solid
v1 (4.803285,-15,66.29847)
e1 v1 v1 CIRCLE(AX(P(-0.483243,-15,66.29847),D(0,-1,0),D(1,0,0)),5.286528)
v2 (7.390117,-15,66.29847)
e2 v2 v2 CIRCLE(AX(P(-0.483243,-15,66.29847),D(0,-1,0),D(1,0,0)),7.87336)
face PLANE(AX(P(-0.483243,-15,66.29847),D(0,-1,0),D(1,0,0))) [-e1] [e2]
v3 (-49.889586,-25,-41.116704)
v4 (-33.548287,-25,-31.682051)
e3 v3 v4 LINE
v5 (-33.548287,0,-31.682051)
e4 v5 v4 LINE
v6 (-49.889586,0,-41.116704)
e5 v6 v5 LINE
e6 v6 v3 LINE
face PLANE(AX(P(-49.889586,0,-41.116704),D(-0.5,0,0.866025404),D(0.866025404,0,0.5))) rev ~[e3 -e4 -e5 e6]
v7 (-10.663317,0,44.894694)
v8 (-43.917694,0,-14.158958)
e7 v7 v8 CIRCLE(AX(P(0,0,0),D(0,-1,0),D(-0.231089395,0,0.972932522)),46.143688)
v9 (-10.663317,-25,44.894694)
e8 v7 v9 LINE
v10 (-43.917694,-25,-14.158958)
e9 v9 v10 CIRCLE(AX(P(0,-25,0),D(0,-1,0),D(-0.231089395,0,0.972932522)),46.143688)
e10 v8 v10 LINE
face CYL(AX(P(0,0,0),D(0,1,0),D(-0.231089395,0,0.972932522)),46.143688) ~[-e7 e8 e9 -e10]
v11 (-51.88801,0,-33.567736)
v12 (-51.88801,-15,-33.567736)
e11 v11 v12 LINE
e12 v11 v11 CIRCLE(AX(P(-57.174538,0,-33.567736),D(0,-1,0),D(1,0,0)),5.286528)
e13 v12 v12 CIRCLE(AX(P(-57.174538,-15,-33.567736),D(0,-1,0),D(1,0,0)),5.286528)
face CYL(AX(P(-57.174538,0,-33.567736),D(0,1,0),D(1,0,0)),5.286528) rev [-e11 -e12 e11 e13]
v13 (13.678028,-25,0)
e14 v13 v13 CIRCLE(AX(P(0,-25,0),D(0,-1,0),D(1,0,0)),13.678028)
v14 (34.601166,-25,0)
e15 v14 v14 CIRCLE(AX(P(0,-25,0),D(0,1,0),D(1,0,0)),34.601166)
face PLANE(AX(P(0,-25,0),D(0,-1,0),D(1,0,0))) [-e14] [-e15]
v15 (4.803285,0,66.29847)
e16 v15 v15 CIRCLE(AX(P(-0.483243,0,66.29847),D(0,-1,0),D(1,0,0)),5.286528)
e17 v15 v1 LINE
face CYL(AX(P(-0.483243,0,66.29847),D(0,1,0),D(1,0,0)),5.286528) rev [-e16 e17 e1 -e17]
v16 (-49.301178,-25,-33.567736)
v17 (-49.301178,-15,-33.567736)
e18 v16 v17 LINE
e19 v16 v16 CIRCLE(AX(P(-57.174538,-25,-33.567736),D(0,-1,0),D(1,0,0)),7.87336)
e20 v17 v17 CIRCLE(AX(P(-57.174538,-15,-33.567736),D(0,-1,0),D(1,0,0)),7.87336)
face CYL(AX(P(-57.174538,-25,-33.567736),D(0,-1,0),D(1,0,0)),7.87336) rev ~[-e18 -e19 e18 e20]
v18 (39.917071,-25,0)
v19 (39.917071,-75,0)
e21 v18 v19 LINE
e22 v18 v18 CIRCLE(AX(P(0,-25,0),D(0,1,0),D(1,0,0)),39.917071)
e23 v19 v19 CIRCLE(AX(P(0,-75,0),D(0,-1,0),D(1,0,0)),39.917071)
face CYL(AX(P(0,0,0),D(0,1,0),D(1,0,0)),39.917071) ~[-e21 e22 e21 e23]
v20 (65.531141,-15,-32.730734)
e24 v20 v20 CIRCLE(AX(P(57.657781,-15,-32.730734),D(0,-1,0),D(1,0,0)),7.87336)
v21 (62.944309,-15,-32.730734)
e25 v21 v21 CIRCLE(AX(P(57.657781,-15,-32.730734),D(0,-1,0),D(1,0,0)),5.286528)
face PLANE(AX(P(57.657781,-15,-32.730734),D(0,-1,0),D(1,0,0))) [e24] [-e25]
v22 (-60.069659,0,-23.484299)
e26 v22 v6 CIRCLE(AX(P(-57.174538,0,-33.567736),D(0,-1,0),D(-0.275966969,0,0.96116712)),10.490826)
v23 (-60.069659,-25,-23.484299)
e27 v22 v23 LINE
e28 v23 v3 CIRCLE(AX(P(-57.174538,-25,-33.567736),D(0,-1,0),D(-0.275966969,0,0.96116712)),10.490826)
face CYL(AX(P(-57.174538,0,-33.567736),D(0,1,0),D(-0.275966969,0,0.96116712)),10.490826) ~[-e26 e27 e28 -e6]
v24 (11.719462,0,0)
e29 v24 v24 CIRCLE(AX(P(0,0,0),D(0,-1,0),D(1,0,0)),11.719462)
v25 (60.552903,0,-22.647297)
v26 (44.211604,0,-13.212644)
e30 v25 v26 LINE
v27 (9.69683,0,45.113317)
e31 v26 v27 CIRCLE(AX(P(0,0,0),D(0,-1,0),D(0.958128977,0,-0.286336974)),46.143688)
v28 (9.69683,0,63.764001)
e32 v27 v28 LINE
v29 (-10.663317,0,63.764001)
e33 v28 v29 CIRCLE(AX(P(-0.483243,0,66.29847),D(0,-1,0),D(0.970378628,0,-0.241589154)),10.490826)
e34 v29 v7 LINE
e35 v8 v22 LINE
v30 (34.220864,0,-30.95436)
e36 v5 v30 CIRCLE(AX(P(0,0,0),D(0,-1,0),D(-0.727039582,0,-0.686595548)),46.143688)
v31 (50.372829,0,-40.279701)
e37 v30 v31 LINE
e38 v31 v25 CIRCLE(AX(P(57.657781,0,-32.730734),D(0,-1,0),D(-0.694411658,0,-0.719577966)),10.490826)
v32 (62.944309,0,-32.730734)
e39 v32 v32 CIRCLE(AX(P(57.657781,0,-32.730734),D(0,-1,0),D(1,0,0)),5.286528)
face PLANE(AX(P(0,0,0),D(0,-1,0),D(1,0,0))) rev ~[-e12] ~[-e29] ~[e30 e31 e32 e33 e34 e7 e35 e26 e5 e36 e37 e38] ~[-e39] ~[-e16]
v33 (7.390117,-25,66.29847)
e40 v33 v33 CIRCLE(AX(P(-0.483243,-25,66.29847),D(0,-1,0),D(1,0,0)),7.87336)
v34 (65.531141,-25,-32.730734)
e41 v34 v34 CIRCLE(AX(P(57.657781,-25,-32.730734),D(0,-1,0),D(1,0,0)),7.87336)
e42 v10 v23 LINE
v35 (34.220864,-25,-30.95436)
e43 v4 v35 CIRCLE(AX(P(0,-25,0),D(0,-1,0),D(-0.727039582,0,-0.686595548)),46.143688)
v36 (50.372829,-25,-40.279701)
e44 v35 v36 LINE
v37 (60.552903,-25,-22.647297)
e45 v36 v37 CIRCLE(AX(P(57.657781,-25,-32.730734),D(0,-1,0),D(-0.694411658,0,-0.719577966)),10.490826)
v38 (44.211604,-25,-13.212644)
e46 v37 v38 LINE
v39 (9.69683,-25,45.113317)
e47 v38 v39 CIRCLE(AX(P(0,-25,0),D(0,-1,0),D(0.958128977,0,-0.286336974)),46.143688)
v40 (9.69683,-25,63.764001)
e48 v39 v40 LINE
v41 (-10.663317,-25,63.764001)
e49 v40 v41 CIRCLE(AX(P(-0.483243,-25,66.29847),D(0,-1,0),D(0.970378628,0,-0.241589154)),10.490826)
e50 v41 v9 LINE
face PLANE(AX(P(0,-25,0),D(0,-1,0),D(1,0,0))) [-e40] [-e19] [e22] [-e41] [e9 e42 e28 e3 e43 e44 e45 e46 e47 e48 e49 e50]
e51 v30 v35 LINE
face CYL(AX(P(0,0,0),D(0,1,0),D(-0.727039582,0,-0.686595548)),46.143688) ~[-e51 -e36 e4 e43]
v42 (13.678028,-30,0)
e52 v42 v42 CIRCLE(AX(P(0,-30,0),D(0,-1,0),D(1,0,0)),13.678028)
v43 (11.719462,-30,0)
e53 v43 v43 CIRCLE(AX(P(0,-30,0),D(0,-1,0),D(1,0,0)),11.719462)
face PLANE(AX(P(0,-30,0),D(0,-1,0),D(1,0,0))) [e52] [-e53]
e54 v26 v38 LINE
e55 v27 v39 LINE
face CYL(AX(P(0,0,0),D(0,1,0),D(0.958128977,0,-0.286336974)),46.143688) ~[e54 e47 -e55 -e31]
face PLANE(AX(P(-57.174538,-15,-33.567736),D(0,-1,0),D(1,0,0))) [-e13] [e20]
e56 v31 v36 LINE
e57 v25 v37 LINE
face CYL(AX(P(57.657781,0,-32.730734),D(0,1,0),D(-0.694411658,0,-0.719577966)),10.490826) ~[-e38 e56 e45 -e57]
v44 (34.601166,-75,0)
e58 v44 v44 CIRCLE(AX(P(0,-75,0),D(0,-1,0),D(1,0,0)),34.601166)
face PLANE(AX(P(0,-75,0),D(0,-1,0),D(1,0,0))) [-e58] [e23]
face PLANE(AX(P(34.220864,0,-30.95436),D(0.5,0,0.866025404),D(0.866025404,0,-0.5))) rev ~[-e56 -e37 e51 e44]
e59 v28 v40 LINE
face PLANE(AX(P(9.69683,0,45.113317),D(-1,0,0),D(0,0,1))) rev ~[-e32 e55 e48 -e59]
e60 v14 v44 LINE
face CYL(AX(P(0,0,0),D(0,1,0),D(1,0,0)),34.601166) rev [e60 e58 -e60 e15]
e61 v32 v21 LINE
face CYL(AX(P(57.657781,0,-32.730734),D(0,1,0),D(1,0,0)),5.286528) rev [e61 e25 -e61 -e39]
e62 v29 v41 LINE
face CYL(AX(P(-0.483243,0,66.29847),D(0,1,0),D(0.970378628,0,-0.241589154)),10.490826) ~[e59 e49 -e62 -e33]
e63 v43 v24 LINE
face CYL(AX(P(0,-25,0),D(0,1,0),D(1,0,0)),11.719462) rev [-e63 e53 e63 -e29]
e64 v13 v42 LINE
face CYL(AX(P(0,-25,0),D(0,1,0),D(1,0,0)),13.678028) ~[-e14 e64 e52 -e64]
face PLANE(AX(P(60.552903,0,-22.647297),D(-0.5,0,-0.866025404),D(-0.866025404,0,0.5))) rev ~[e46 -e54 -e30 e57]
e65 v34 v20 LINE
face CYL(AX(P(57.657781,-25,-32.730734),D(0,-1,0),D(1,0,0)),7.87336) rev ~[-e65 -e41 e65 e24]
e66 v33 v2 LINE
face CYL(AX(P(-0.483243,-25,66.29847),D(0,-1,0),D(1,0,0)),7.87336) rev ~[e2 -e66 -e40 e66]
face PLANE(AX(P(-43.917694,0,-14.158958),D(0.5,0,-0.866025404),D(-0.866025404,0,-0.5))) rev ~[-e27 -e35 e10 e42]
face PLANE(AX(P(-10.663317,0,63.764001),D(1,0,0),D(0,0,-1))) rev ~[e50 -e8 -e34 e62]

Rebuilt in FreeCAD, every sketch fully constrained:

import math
import FreeCAD as App
import Part
import Sketcher
Q = App.Units.Quantity

doc = App.newDocument("Part")
body = doc.addObject("PartDesign::Body", "Body")

sketch1 = body.newObject("Sketcher::SketchObject", "Sketch")
sketch1.AttachmentSupport = (doc.getObject("XZ_Plane"), [""])
sketch1.MapMode = "FlatFace"
sketch1.addGeometry([
    Part.LineSegment(App.Vector(-11, 64, 0), App.Vector(-11, 45, 0)),
    Part.ArcOfCircle(Part.Circle(App.Vector(0, 0, 0), App.Vector(0, 0, 1), 46), math.radians(103), math.radians(198)),
    Part.LineSegment(App.Vector(-44, -14, 0), App.Vector(-60, -23, 0)),
    Part.ArcOfCircle(Part.Circle(App.Vector(-57, -34, 0), App.Vector(0, 0, 1), 10), math.radians(106), math.radians(314)),
    Part.LineSegment(App.Vector(-50, -41, 0), App.Vector(-34, -32, 0)),
    Part.ArcOfCircle(Part.Circle(App.Vector(0, 0, 0), App.Vector(0, 0, 1), 46), math.radians(-137), math.radians(-42)),
    Part.LineSegment(App.Vector(34, -31, 0), App.Vector(50, -40, 0)),
    Part.ArcOfCircle(Part.Circle(App.Vector(58, -33, 0), App.Vector(0, 0, 1), 10), math.radians(-134), math.radians(74)),
    Part.LineSegment(App.Vector(61, -23, 0), App.Vector(44, -13, 0)),
    Part.ArcOfCircle(Part.Circle(App.Vector(0, 0, 0), App.Vector(0, 0, 1), 46), math.radians(-17), math.radians(78)),
    Part.LineSegment(App.Vector(10, 45, 0), App.Vector(10, 64, 0)),
    Part.ArcOfCircle(Part.Circle(App.Vector(0, 66, 0), App.Vector(0, 0, 1), 10), math.radians(-14), math.radians(194)),
    Part.Circle(App.Vector(-57, -34, 0), App.Vector(0, 0, 1), 5),
    Part.Circle(App.Vector(58, -33, 0), App.Vector(0, 0, 1), 5),
    Part.Circle(App.Vector(0, 66, 0), App.Vector(0, 0, 1), 5),
], False)
sketch1.addConstraint([
    Sketcher.Constraint("Coincident", 0, 2, 1, 1),
    Sketcher.Constraint("Coincident", 1, 2, 2, 1),
    Sketcher.Constraint("Coincident", 2, 2, 3, 1),
    Sketcher.Constraint("Coincident", 3, 2, 4, 1),
    Sketcher.Constraint("Coincident", 4, 2, 5, 1),
    Sketcher.Constraint("Coincident", 5, 2, 6, 1),
    Sketcher.Constraint("Coincident", 6, 2, 7, 1),
    Sketcher.Constraint("Coincident", 7, 2, 8, 1),
    Sketcher.Constraint("Coincident", 8, 2, 9, 1),
    Sketcher.Constraint("Coincident", 9, 2, 10, 1),
    Sketcher.Constraint("Coincident", 10, 2, 11, 1),
    Sketcher.Constraint("Coincident", 11, 2, 0, 1),
    Sketcher.Constraint("Vertical", 0),
    Sketcher.Constraint("Vertical", 10),
    Sketcher.Constraint("Coincident", 1, 3, -1, 1),
    Sketcher.Constraint("Coincident", 5, 3, -1, 1),
    Sketcher.Constraint("Coincident", 9, 3, -1, 1),
    Sketcher.Constraint("Coincident", 12, 3, 3, 3),
    Sketcher.Constraint("Coincident", 13, 3, 7, 3),
    Sketcher.Constraint("Coincident", 14, 3, 11, 3),
    Sketcher.Constraint("Equal", 1, 5),
    Sketcher.Constraint("Equal", 3, 7),
    Sketcher.Constraint("Equal", 5, 9),
    Sketcher.Constraint("Equal", 7, 11),
    Sketcher.Constraint("Equal", 12, 13),
    Sketcher.Constraint("Equal", 13, 14),
    Sketcher.Constraint("Parallel", 2, 4),
    Sketcher.Constraint("Parallel", 6, 8),
    Sketcher.Constraint("Horizontal", 10, 2, 11, 2),
    Sketcher.Constraint("Equal", 2, 6),
    Sketcher.Constraint("Equal", 4, 8),
    Sketcher.Constraint("Angle", 2, Q("-150 deg")),
    Sketcher.Constraint("Angle", 6, Q("-30 deg")),
    Sketcher.Constraint("Diameter", 12, 10.573056),
    Sketcher.Constraint("DistanceY", -1, 1, 10, 2, 63.764001),
    Sketcher.Constraint("Radius", 1, 46.143688),
    Sketcher.Constraint("Radius", 3, 10.490826),
    Sketcher.Constraint("DistanceY", 2, 2, -1, 1, 23.484299),
    Sketcher.Constraint("DistanceY", 6, 2, -1, 1, 40.279701),
    Sketcher.Constraint("DistanceX", 3, 2, 4, 2, 16.341298),
    Sketcher.Constraint("DistanceY", 0, 2, 0, 1, 18.869306),
    Sketcher.Constraint("DistanceY", 10, 1, 10, 2, 18.650683),
    Sketcher.Constraint("DistanceX", -1, 1, 7, 3, 57.657781),
    Sketcher.Constraint("DistanceX", 2, 2, -1, 1, 60.069659),
    Sketcher.Constraint("DistanceY", 4, 2, -1, 1, 31.682051),
])
pad1 = body.newObject("PartDesign::Pad", "Pad")
pad1.Profile = sketch1
pad1.Length = 25

sketch2 = body.newObject("Sketcher::SketchObject", "Sketch001")
sketch2.AttachmentSupport = (doc.getObject("XZ_Plane"), [""])
sketch2.MapMode = "FlatFace"
sketch2.addGeometry([
    Part.Circle(App.Vector(0, 0, 0), App.Vector(0, 0, 1), 40),
    Part.Circle(App.Vector(0, 0, 0), App.Vector(0, 0, 1), 35),
], False)
sketch2.addConstraint([
    Sketcher.Constraint("Coincident", 0, 3, -1, 1),
    Sketcher.Constraint("Coincident", 1, 3, -1, 1),
    Sketcher.Constraint("Diameter", 0, 79.834141),
    Sketcher.Constraint("Diameter", 1, 69.202332),
])
pad2 = body.newObject("PartDesign::Pad", "Pad001")
pad2.Profile = sketch2
pad2.Length = 75

sketch3 = body.newObject("Sketcher::SketchObject", "Sketch002")
sketch3.AttachmentSupport = (doc.getObject("XZ_Plane"), [""])
sketch3.MapMode = "FlatFace"
sketch3.addGeometry(Part.Circle(App.Vector(0, 0, 0), App.Vector(0, 0, 1), 12), False)
sketch3.addConstraint([
    Sketcher.Constraint("Coincident", 0, 3, -1, 1),
    Sketcher.Constraint("Diameter", 0, 23.438924),
])
pocket1 = body.newObject("PartDesign::Pocket", "Pocket")
pocket1.Profile = sketch3
pocket1.Length = 25
pocket1.Reversed = True

sketch4 = body.newObject("Sketcher::SketchObject", "Sketch003")
sketch4.AttachmentSupport = (doc.getObject("XZ_Plane"), [""])
sketch4.MapMode = "FlatFace"
sketch4.AttachmentOffset = App.Placement(App.Vector(0, 0, 25), App.Rotation())
sketch4.addGeometry([
    Part.Circle(App.Vector(0, 66, 0), App.Vector(0, 0, 1), 8),
    Part.Circle(App.Vector(0, 66, 0), App.Vector(0, 0, 1), 5),
    Part.Circle(App.Vector(-57, -34, 0), App.Vector(0, 0, 1), 8),
    Part.Circle(App.Vector(-57, -34, 0), App.Vector(0, 0, 1), 5),
    Part.Circle(App.Vector(58, -33, 0), App.Vector(0, 0, 1), 8),
    Part.Circle(App.Vector(58, -33, 0), App.Vector(0, 0, 1), 5),
], False)
sketch4.addConstraint([
    Sketcher.Constraint("Coincident", 1, 3, 0, 3),
    Sketcher.Constraint("Coincident", 3, 3, 2, 3),
    Sketcher.Constraint("Coincident", 5, 3, 4, 3),
    Sketcher.Constraint("Equal", 0, 2),
    Sketcher.Constraint("Equal", 1, 3),
    Sketcher.Constraint("Equal", 2, 4),
    Sketcher.Constraint("Equal", 3, 5),
    Sketcher.Constraint("Diameter", 0, 15.74672),
    Sketcher.Constraint("Diameter", 1, 10.573056),
    Sketcher.Constraint("DistanceY", -1, 1, 0, 3, 66.29847),
    Sketcher.Constraint("DistanceX", -1, 1, 4, 3, 57.657781),
    Sketcher.Constraint("DistanceX", 2, 3, 4, 3, 114.832319),
    Sketcher.Constraint("DistanceX", 0, 3, -1, 1, 0.483243),
    Sketcher.Constraint("DistanceY", 2, 3, -1, 1, 33.567736),
    Sketcher.Constraint("DistanceY", 4, 3, -1, 1, 32.730734),
])
pocket2 = body.newObject("PartDesign::Pocket", "Pocket001")
pocket2.Profile = sketch4
pocket2.Length = 10

sketch5 = body.newObject("Sketcher::SketchObject", "Sketch004")
sketch5.AttachmentSupport = (doc.getObject("XZ_Plane"), [""])
sketch5.MapMode = "FlatFace"
sketch5.AttachmentOffset = App.Placement(App.Vector(0, 0, 25), App.Rotation())
sketch5.addGeometry([
    Part.Circle(App.Vector(0, 0, 0), App.Vector(0, 0, 1), 14),
    Part.Circle(App.Vector(0, 0, 0), App.Vector(0, 0, 1), 12),
], False)
sketch5.addConstraint([
    Sketcher.Constraint("Coincident", 0, 3, -1, 1),
    Sketcher.Constraint("Coincident", 1, 3, -1, 1),
    Sketcher.Constraint("Diameter", 0, 27.356055),
    Sketcher.Constraint("Diameter", 1, 23.438924),
])
pad3 = body.newObject("PartDesign::Pad", "Pad002")
pad3.Profile = sketch5
pad3.Length = 5

doc.recompute()
